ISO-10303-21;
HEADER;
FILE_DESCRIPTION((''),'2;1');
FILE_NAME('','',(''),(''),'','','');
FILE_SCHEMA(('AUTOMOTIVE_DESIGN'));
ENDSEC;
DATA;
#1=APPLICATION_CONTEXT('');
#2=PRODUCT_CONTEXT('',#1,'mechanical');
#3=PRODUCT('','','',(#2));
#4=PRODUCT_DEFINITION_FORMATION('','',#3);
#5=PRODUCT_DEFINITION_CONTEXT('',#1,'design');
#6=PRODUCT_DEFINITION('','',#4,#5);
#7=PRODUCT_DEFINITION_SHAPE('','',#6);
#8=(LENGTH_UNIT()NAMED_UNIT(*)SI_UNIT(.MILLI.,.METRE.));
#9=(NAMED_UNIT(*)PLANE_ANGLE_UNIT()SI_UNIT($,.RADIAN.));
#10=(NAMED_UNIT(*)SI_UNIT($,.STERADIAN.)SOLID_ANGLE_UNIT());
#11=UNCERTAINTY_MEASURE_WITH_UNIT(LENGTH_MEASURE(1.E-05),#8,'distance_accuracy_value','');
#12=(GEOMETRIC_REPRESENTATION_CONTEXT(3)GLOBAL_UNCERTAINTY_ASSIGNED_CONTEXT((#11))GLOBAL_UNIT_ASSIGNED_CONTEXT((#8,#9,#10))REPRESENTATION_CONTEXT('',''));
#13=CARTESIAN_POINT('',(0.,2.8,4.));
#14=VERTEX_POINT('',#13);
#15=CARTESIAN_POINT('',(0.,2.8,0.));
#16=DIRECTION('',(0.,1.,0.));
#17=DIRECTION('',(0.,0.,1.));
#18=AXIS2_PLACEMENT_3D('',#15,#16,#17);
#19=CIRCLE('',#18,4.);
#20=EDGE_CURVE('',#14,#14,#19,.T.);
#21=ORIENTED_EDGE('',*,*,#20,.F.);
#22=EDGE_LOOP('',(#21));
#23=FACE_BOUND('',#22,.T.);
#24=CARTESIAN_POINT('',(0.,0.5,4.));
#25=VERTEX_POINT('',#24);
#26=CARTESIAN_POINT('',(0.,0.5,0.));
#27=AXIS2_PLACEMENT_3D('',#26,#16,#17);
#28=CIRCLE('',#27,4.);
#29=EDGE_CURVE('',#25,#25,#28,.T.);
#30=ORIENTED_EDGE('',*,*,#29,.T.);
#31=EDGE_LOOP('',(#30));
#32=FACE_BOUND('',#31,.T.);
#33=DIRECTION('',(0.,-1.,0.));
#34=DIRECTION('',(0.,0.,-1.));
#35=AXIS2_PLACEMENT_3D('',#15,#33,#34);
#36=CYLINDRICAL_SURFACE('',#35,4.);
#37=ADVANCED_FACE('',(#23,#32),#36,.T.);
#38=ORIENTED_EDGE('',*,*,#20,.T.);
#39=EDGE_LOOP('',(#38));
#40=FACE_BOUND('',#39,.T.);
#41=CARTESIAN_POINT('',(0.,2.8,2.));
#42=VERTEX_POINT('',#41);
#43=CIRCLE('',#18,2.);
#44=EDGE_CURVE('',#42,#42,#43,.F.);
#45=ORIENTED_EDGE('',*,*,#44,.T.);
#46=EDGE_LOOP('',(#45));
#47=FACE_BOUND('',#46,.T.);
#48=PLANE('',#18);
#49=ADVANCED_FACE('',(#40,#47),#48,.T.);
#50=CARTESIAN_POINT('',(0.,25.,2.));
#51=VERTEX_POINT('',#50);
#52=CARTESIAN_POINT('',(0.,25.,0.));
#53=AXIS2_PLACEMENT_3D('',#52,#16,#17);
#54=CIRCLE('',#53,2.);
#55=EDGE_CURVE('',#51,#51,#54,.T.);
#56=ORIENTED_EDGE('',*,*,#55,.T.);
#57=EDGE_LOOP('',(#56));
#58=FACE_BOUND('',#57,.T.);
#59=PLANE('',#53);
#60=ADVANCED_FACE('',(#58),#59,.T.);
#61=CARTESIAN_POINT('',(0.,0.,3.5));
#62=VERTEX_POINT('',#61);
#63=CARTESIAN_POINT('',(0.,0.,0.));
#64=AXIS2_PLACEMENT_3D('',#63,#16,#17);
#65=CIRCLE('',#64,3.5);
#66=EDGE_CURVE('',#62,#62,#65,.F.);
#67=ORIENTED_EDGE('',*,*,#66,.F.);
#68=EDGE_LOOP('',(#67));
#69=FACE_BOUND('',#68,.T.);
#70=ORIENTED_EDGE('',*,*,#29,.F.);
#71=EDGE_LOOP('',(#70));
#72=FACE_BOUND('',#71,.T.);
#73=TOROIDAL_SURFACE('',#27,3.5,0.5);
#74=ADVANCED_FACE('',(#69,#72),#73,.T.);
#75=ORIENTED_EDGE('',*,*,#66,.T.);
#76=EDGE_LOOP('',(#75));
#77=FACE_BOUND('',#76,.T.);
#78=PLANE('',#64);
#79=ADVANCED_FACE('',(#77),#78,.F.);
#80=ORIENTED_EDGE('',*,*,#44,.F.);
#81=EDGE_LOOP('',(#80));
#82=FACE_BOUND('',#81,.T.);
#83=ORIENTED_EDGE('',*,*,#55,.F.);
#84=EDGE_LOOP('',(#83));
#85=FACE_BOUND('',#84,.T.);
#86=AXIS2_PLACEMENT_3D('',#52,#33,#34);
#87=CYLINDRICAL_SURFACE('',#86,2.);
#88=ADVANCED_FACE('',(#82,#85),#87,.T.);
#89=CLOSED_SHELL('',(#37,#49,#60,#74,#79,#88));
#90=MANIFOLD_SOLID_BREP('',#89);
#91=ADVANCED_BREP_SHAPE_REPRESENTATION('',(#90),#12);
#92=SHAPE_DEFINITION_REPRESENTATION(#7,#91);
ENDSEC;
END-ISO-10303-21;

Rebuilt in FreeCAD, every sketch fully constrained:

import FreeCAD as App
import Part
import Sketcher

V = App.Vector


def edges_at(feature, points):
    """Names of the edges that pass closest to the given points."""
    edges = feature.Shape.Edges
    near = lambda p: min(range(len(edges)), key=lambda i: edges[i].distToShape(Part.Vertex(*p))[0])
    return sorted({f"Edge{near(p) + 1}" for p in points})

doc = App.newDocument("Part")
body = doc.addObject("PartDesign::Body", "Body")

sketch1 = body.newObject("Sketcher::SketchObject", "Sketch")
sketch1.AttachmentSupport = (doc.getObject("XZ_Plane"), [""])
sketch1.MapMode = "FlatFace"
sketch1.addGeometry(Part.Circle(V(0, 0, 0), V(0, 0, 1), 4), False)
sketch1.addConstraint([
    Sketcher.Constraint("Coincident", 0, 3, -1, 1),
    Sketcher.Constraint("Diameter", 0, 8.0),
])
pad1 = body.newObject("PartDesign::Pad", "Pad")
pad1.Profile = sketch1
pad1.Length = 2.8
pad1.Reversed = True

sketch2 = body.newObject("Sketcher::SketchObject", "Sketch001")
sketch2.AttachmentSupport = (doc.getObject("XZ_Plane"), [""])
sketch2.MapMode = "FlatFace"
sketch2.addGeometry(Part.Circle(V(0, 0, 0), V(0, 0, 1), 2), False)
sketch2.addConstraint([
    Sketcher.Constraint("Coincident", 0, 3, -1, 1),
    Sketcher.Constraint("Diameter", 0, 4.0),
])
pad2 = body.newObject("PartDesign::Pad", "Pad001")
pad2.Profile = sketch2
pad2.Length = 25
pad2.Reversed = True
doc.recompute()

fillet = body.newObject("PartDesign::Fillet", "Fillet")
fillet.Base = (pad2, edges_at(pad2, [(0, 0, -4)]))
fillet.Radius = 0.5

doc.recompute()
